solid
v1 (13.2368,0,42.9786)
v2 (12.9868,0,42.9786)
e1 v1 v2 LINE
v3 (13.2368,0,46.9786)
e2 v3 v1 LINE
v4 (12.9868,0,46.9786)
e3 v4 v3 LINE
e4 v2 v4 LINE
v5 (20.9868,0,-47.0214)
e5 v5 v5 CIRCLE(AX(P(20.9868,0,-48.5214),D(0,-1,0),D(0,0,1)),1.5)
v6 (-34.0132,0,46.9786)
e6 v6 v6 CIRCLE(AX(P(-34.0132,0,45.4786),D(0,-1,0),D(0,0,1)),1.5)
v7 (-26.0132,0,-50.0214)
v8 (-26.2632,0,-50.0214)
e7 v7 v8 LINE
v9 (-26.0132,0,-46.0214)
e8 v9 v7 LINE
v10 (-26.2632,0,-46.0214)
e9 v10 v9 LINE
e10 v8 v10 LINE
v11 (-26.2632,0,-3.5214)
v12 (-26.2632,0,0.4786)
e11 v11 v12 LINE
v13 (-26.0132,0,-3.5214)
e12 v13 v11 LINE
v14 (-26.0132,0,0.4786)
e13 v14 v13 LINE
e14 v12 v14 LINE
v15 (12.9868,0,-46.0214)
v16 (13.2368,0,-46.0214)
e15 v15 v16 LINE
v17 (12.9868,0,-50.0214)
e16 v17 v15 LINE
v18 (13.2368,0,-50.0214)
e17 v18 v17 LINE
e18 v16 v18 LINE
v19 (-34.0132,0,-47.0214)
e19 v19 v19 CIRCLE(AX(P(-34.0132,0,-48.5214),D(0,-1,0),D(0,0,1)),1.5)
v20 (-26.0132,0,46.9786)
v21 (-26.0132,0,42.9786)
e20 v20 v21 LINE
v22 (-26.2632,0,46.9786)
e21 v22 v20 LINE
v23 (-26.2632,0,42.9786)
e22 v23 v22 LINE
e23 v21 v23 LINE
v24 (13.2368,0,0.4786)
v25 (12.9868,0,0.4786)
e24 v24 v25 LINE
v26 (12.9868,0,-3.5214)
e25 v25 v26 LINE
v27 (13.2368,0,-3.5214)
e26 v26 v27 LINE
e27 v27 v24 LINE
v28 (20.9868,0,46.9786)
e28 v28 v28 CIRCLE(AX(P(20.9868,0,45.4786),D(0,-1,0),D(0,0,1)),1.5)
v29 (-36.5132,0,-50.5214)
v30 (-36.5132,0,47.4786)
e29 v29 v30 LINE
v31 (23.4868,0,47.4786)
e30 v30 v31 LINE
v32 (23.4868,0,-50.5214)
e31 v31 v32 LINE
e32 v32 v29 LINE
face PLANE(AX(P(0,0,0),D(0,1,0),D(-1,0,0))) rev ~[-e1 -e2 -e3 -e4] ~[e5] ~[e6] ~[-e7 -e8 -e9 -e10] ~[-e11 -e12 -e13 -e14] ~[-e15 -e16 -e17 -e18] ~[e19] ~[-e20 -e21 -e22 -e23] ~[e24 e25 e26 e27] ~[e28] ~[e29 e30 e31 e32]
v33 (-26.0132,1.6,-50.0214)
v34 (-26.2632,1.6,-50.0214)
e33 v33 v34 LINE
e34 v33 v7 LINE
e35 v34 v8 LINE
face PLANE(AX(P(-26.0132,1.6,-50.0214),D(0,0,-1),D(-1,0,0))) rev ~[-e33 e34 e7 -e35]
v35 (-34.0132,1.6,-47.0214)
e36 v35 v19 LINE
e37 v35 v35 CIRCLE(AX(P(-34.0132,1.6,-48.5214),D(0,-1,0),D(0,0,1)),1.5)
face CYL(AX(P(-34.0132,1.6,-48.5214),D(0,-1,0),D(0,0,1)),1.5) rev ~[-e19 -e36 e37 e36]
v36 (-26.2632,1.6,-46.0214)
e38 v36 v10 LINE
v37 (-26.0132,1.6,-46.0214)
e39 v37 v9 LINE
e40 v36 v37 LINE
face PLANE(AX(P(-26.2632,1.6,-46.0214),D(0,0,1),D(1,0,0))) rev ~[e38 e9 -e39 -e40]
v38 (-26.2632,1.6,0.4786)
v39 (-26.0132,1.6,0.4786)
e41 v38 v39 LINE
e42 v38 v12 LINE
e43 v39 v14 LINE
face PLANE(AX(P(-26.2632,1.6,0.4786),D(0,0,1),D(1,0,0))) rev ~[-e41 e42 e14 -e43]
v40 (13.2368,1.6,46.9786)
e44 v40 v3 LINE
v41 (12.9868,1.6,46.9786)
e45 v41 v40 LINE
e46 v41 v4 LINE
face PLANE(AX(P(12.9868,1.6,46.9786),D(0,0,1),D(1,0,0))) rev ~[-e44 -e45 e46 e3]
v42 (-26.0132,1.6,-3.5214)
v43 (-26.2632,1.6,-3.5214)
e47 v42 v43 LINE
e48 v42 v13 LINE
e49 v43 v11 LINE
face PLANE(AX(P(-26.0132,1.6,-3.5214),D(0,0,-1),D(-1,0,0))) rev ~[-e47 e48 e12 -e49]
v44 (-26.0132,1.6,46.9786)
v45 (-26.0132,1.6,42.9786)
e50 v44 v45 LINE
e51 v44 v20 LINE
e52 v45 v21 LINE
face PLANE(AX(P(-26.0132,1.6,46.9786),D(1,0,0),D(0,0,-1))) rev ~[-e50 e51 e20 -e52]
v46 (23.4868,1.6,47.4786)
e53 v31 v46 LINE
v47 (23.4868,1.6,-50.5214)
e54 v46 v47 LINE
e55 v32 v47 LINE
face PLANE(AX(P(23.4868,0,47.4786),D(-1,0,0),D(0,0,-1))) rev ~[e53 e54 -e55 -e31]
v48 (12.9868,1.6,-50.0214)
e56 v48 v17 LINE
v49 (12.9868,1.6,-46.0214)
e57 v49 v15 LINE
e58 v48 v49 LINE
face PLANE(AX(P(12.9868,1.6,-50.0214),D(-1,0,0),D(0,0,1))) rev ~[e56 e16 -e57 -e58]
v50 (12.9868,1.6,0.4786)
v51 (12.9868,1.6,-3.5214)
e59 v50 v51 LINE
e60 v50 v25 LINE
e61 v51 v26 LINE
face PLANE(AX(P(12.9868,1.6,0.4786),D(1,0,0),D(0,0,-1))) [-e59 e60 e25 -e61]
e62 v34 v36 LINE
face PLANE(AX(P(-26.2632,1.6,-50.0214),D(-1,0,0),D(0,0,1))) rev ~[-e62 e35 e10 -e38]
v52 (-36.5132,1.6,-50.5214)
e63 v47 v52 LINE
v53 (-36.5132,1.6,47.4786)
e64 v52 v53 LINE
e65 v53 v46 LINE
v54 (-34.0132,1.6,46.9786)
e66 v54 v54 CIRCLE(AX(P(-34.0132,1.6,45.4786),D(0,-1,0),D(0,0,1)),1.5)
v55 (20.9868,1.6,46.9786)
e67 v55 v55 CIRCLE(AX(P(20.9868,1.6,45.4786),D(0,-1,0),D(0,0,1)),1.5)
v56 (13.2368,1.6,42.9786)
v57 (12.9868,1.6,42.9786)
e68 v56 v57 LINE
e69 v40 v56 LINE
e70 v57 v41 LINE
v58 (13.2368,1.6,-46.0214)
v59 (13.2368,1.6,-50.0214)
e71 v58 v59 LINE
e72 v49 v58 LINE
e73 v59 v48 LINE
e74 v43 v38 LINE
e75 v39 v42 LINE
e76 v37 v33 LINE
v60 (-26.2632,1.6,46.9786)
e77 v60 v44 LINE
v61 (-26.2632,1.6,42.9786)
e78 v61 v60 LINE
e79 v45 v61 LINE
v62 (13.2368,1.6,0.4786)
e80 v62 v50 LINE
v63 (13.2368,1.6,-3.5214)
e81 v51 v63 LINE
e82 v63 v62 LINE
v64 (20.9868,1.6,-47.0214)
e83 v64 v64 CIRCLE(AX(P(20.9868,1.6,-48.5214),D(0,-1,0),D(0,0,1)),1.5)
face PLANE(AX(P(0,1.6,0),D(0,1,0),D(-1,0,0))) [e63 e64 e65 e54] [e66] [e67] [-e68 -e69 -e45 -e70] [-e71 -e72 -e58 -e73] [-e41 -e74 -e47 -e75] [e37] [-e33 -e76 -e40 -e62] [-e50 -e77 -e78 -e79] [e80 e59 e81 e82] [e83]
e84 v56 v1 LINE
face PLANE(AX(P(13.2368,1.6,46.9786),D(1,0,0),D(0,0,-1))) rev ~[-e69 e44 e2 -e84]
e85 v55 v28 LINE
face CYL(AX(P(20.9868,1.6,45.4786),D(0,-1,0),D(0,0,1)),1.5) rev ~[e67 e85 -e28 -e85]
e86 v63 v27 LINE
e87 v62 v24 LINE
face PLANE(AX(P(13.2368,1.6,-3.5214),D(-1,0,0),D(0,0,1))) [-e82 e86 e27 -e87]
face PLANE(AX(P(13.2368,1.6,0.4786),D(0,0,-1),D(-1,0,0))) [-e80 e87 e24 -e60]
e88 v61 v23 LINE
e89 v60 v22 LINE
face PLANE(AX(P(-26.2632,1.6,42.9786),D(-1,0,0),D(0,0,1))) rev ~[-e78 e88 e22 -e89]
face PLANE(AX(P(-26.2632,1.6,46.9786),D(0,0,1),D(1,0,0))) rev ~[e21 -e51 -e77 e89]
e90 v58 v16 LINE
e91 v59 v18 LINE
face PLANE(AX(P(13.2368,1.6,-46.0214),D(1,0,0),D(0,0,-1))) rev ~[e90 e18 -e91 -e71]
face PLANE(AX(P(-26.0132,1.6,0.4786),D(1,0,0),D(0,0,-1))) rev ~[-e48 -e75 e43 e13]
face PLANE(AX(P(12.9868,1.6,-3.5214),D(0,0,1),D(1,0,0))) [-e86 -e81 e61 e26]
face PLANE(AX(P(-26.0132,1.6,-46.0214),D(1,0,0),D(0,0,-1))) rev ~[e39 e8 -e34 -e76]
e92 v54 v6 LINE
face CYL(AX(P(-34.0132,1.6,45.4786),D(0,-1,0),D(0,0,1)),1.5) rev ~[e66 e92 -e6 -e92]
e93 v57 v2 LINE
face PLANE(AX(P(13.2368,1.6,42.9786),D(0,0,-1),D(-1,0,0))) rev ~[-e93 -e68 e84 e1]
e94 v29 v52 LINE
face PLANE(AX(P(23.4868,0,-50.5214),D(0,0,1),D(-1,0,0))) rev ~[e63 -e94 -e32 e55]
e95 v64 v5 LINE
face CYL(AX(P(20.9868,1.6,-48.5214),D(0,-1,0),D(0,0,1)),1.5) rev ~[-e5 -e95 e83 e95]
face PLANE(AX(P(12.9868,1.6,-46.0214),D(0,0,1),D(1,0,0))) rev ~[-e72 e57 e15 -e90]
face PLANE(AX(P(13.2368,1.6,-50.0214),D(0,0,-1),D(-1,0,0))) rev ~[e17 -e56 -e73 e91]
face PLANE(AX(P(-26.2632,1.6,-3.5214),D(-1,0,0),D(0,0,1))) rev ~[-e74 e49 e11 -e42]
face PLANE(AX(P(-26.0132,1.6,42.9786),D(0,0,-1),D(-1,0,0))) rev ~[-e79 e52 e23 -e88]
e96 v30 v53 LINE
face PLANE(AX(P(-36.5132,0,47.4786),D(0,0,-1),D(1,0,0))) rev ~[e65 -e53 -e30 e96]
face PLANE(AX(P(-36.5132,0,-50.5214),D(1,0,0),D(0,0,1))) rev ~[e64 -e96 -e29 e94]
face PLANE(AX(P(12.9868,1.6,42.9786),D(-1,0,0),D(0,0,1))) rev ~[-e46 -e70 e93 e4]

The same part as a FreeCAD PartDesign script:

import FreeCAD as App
import Part
import Sketcher

V = App.Vector
Q = App.Units.Quantity


def add_polygon(sketch, points):
    """Adds a closed chain of lines whose ends are joined by coincident constraints."""
    first, n = sketch.GeometryCount, len(points)
    for a, b in zip(points, points[1:] + points[:1]):
        sketch.addGeometry(Part.LineSegment(App.Vector(*a, 0), App.Vector(*b, 0)), False)
    for i in range(n):
        sketch.addConstraint(Sketcher.Constraint("Coincident", first + i, 2, first + (i + 1) % n, 1))

doc = App.newDocument("Part")
params = doc.addObject("Spreadsheet::Sheet", "Params")
for row, (alias, value) in enumerate([
    ("sketch1_width", "60 mm"),
    ("sketch1_height", "98 mm"),
    ("pad1_length", "1.6 mm"),
    ("sketch2_height", "4 mm"),
    ("sketch2_width", "0.25 mm"),
    ("pocket1_length", "1.6 mm"),
    ("sketch3_diameter", "3 mm"),
    ("hole_diameter", "3 mm"),
], start=1):
    params.set(f"A{row}", alias)
    params.set(f"B{row}", "=" + value)
    params.setAlias(f"B{row}", alias)

body = doc.addObject("PartDesign::Body", "Body")

sketch1 = doc.addObject("Sketcher::SketchObject", "Sketch")
body.addObject(sketch1)
sketch1.AttachmentSupport = (doc.XZ_Plane, [""])
sketch1.MapMode = "FlatFace"
add_polygon(sketch1, [(-36.5132, -50.5214), (-36.5132, 47.4786), (23.4868, 47.4786), (23.4868, -50.5214)])
sketch1.addConstraint(Sketcher.Constraint("Vertical", 0))
sketch1.addConstraint(Sketcher.Constraint("Horizontal", 1))
sketch1.addConstraint(Sketcher.Constraint("Vertical", 2))
sketch1.addConstraint(Sketcher.Constraint("Horizontal", 3))
sketch1.addConstraint(Sketcher.Constraint("DistanceX", 1, 1, 1, 2, Q("60 mm")))
sketch1.addConstraint(Sketcher.Constraint("DistanceY", 0, 1, 0, 2, Q("98 mm")))
sketch1.addConstraint(Sketcher.Constraint("DistanceX", 0, 2, -1, 1, Q("36.5132 mm")))
sketch1.addConstraint(Sketcher.Constraint("DistanceY", -1, 1, 0, 2, Q("47.4786 mm")))
sketch1.setExpression("Constraints[8]", "Params.sketch1_width")
sketch1.setExpression("Constraints[9]", "Params.sketch1_height")
pad1 = doc.addObject("PartDesign::Pad", "Pad")
body.addObject(pad1)
pad1.Profile = sketch1
pad1.setExpression("Length", "Params.pad1_length")
pad1.Reversed = True

sketch2 = doc.addObject("Sketcher::SketchObject", "Sketch001")
body.addObject(sketch2)
sketch2.AttachmentSupport = (doc.XZ_Plane, [""])
sketch2.MapMode = "FlatFace"
sketch2.AttachmentOffset = App.Placement(V(0, 0, -1.6), App.Rotation())
add_polygon(sketch2, [(-26.2632, 42.9786), (-26.2632, 46.9786), (-26.0132, 46.9786), (-26.0132, 42.9786)])
add_polygon(sketch2, [(-26.2632, -3.5214), (-26.2632, 0.4786), (-26.0132, 0.4786), (-26.0132, -3.5214)])
add_polygon(sketch2, [(-26.2632, -50.0214), (-26.2632, -46.0214), (-26.0132, -46.0214), (-26.0132, -50.0214)])
add_polygon(sketch2, [(12.9868, -50.0214), (12.9868, -46.0214), (13.2368, -46.0214), (13.2368, -50.0214)])
add_polygon(sketch2, [(13.2368, -3.5214), (12.9868, -3.5214), (12.9868, 0.4786), (13.2368, 0.4786)])
add_polygon(sketch2, [(12.9868, 42.9786), (12.9868, 46.9786), (13.2368, 46.9786), (13.2368, 42.9786)])
sketch2.addConstraint(Sketcher.Constraint("Vertical", 0))
sketch2.addConstraint(Sketcher.Constraint("Horizontal", 1))
sketch2.addConstraint(Sketcher.Constraint("Vertical", 2))
sketch2.addConstraint(Sketcher.Constraint("Horizontal", 3))
sketch2.addConstraint(Sketcher.Constraint("Vertical", 4))
sketch2.addConstraint(Sketcher.Constraint("Horizontal", 5))
sketch2.addConstraint(Sketcher.Constraint("Vertical", 6))
sketch2.addConstraint(Sketcher.Constraint("Horizontal", 7))
sketch2.addConstraint(Sketcher.Constraint("Vertical", 8))
sketch2.addConstraint(Sketcher.Constraint("Horizontal", 9))
sketch2.addConstraint(Sketcher.Constraint("Vertical", 10))
sketch2.addConstraint(Sketcher.Constraint("Horizontal", 11))
sketch2.addConstraint(Sketcher.Constraint("Vertical", 12))
sketch2.addConstraint(Sketcher.Constraint("Horizontal", 13))
sketch2.addConstraint(Sketcher.Constraint("Vertical", 14))
sketch2.addConstraint(Sketcher.Constraint("Horizontal", 15))
sketch2.addConstraint(Sketcher.Constraint("Horizontal", 16))
sketch2.addConstraint(Sketcher.Constraint("Vertical", 17))
sketch2.addConstraint(Sketcher.Constraint("Horizontal", 18))
sketch2.addConstraint(Sketcher.Constraint("Vertical", 19))
sketch2.addConstraint(Sketcher.Constraint("Vertical", 20))
sketch2.addConstraint(Sketcher.Constraint("Horizontal", 21))
sketch2.addConstraint(Sketcher.Constraint("Vertical", 22))
sketch2.addConstraint(Sketcher.Constraint("Horizontal", 23))
sketch2.addConstraint(Sketcher.Constraint("Horizontal", 9, 2, 12, 2))
sketch2.addConstraint(Sketcher.Constraint("Horizontal", 11, 2, 14, 2))
sketch2.addConstraint(Sketcher.Constraint("Horizontal", 7, 2, 16, 2))
sketch2.addConstraint(Sketcher.Constraint("Horizontal", 5, 2, 17, 2))
sketch2.addConstraint(Sketcher.Constraint("Horizontal", 1, 2, 20, 2))
sketch2.addConstraint(Sketcher.Constraint("Horizontal", 3, 2, 22, 2))
sketch2.addConstraint(Sketcher.Constraint("Vertical", 3, 2, 4, 2))
sketch2.addConstraint(Sketcher.Constraint("Vertical", 2, 2, 5, 2))
sketch2.addConstraint(Sketcher.Constraint("Vertical", 7, 2, 8, 2))
sketch2.addConstraint(Sketcher.Constraint("Vertical", 6, 2, 9, 2))
sketch2.addConstraint(Sketcher.Constraint("Vertical", 15, 2, 16, 2))
sketch2.addConstraint(Sketcher.Constraint("Vertical", 14, 2, 18, 2))
sketch2.addConstraint(Sketcher.Constraint("Vertical", 17, 2, 20, 2))
sketch2.addConstraint(Sketcher.Constraint("Vertical", 19, 2, 21, 2))
sketch2.addConstraint(Sketcher.Constraint("Equal", 11, 13))
sketch2.addConstraint(Sketcher.Constraint("Equal", 2, 4))
sketch2.addConstraint(Sketcher.Constraint("Equal", 6, 8))
sketch2.addConstraint(Sketcher.Constraint("DistanceY", 0, 1, 0, 2, Q("4 mm")))
sketch2.addConstraint(Sketcher.Constraint("DistanceX", 1, 1, 1, 2, Q("0.25 mm")))
sketch2.addConstraint(Sketcher.Constraint("DistanceX", 8, 2, 13, 2, Q("39.5 mm")))
sketch2.addConstraint(Sketcher.Constraint("DistanceY", 8, 2, 3, 2, Q("89 mm")))
sketch2.addConstraint(Sketcher.Constraint("DistanceY", 4, 2, 3, 2, Q("42.5 mm")))
sketch2.addConstraint(Sketcher.Constraint("DistanceX", 0, 2, -1, 1, Q("26.2632 mm")))
sketch2.addConstraint(Sketcher.Constraint("DistanceY", -1, 1, 0, 2, Q("46.9786 mm")))
sketch2.setExpression("Constraints[65]", "Params.sketch2_height")
sketch2.setExpression("Constraints[66]", "Params.sketch2_width")
pocket1 = doc.addObject("PartDesign::Pocket", "Pocket")
body.addObject(pocket1)
pocket1.Profile = sketch2
pocket1.setExpression("Length", "Params.pocket1_length")
pocket1.Reversed = True

sketch3 = doc.addObject("Sketcher::SketchObject", "Sketch002")
body.addObject(sketch3)
sketch3.AttachmentSupport = (doc.XZ_Plane, [""])
sketch3.MapMode = "FlatFace"
sketch3.AttachmentOffset = App.Placement(V(0, 0, -1.6), App.Rotation())
sketch3.addGeometry(Part.Circle(V(-34.0132, 45.4786, 0), V(0, 0, 1), 1.5), False)
sketch3.addGeometry(Part.Circle(V(-34.0132, -48.5214, 0), V(0, 0, 1), 1.5), False)
sketch3.addGeometry(Part.Circle(V(20.9868, -48.5214, 0), V(0, 0, 1), 1.5), False)
sketch3.addGeometry(Part.Circle(V(20.9868, 45.4786, 0), V(0, 0, 1), 1.5), False)
sketch3.addConstraint(Sketcher.Constraint("Equal", 0, 1))
sketch3.addConstraint(Sketcher.Constraint("Equal", 1, 2))
sketch3.addConstraint(Sketcher.Constraint("Equal", 2, 3))
sketch3.addConstraint(Sketcher.Constraint("Horizontal", 1, 3, 2, 3))
sketch3.addConstraint(Sketcher.Constraint("Horizontal", 0, 3, 3, 3))
sketch3.addConstraint(Sketcher.Constraint("Vertical", 0, 3, 1, 3))
sketch3.addConstraint(Sketcher.Constraint("Vertical", 2, 3, 3, 3))
sketch3.addConstraint(Sketcher.Constraint("Diameter", 0, Q("3 mm")))
sketch3.addConstraint(Sketcher.Constraint("DistanceY", 1, 3, 0, 3, Q("94 mm")))
sketch3.addConstraint(Sketcher.Constraint("DistanceX", 1, 3, 2, 3, Q("55 mm")))
sketch3.addConstraint(Sketcher.Constraint("DistanceX", 0, 3, -1, 1, Q("34.0132 mm")))
sketch3.addConstraint(Sketcher.Constraint("DistanceY", -1, 1, 0, 3, Q("45.4786 mm")))
sketch3.setExpression("Constraints[7]", "Params.sketch3_diameter")
doc.recompute()
hole = doc.addObject("PartDesign::Hole", "Hole")
body.addObject(hole)
hole.Profile = sketch3
hole.ThreadType = "None"
hole.setExpression("Diameter", "Params.hole_diameter")
hole.DepthType = "ThroughAll"
hole.Reversed = True

doc.recompute()
